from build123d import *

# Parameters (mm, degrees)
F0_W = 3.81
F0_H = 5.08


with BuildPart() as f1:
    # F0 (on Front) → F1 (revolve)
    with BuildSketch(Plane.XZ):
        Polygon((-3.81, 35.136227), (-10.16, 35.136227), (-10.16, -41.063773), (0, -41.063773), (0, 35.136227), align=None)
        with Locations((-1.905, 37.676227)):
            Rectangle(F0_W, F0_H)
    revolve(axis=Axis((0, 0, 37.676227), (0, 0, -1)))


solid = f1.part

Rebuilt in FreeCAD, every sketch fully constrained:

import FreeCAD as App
import Part
import Sketcher

V = App.Vector
Q = App.Units.Quantity


def add_polygon(sketch, points):
    """Adds a closed chain of lines whose ends are joined by coincident constraints."""
    first, n = sketch.GeometryCount, len(points)
    for a, b in zip(points, points[1:] + points[:1]):
        sketch.addGeometry(Part.LineSegment(App.Vector(*a, 0), App.Vector(*b, 0)), False)
    for i in range(n):
        sketch.addConstraint(Sketcher.Constraint("Coincident", first + i, 2, first + (i + 1) % n, 1))

doc = App.newDocument("Part")
body = doc.addObject("PartDesign::Body", "Body")

sketch1 = body.newObject("Sketcher::SketchObject", "Sketch")
sketch1.AttachmentSupport = (doc.getObject("XZ_Plane"), [""])
sketch1.MapMode = "FlatFace"
add_polygon(sketch1, [(-10.16, 35.136227), (-10.16, -41.063773), (0, -41.063773), (0, 40.216227), (-3.81, 40.216227), (-3.81, 35.136227)])
sketch1.addConstraint([
    Sketcher.Constraint("Vertical", 0),
    Sketcher.Constraint("Horizontal", 1),
    Sketcher.Constraint("Vertical", 2),
    Sketcher.Constraint("Horizontal", 3),
    Sketcher.Constraint("Vertical", 4),
    Sketcher.Constraint("Horizontal", 5),
    Sketcher.Constraint("PointOnObject", 1, 2, -2),
    Sketcher.Constraint("DistanceY", 0, 2, 0, 1, Q("3 in")),
    Sketcher.Constraint("DistanceX", 1, 1, 1, 2, Q("0.4 in")),
    Sketcher.Constraint("DistanceY", 2, 1, 2, 2, Q("3.2 in")),
    Sketcher.Constraint("DistanceX", 3, 2, 3, 1, Q("0.15 in")),
    Sketcher.Constraint("DistanceY", 0, 2, -1, 1, 41.063773),
])
revolution = body.newObject("PartDesign::Revolution", "Revolution")
revolution.Profile = sketch1
revolution.ReferenceAxis = (sketch1, ["V_Axis"])
revolution.Angle = 360

doc.recompute()
